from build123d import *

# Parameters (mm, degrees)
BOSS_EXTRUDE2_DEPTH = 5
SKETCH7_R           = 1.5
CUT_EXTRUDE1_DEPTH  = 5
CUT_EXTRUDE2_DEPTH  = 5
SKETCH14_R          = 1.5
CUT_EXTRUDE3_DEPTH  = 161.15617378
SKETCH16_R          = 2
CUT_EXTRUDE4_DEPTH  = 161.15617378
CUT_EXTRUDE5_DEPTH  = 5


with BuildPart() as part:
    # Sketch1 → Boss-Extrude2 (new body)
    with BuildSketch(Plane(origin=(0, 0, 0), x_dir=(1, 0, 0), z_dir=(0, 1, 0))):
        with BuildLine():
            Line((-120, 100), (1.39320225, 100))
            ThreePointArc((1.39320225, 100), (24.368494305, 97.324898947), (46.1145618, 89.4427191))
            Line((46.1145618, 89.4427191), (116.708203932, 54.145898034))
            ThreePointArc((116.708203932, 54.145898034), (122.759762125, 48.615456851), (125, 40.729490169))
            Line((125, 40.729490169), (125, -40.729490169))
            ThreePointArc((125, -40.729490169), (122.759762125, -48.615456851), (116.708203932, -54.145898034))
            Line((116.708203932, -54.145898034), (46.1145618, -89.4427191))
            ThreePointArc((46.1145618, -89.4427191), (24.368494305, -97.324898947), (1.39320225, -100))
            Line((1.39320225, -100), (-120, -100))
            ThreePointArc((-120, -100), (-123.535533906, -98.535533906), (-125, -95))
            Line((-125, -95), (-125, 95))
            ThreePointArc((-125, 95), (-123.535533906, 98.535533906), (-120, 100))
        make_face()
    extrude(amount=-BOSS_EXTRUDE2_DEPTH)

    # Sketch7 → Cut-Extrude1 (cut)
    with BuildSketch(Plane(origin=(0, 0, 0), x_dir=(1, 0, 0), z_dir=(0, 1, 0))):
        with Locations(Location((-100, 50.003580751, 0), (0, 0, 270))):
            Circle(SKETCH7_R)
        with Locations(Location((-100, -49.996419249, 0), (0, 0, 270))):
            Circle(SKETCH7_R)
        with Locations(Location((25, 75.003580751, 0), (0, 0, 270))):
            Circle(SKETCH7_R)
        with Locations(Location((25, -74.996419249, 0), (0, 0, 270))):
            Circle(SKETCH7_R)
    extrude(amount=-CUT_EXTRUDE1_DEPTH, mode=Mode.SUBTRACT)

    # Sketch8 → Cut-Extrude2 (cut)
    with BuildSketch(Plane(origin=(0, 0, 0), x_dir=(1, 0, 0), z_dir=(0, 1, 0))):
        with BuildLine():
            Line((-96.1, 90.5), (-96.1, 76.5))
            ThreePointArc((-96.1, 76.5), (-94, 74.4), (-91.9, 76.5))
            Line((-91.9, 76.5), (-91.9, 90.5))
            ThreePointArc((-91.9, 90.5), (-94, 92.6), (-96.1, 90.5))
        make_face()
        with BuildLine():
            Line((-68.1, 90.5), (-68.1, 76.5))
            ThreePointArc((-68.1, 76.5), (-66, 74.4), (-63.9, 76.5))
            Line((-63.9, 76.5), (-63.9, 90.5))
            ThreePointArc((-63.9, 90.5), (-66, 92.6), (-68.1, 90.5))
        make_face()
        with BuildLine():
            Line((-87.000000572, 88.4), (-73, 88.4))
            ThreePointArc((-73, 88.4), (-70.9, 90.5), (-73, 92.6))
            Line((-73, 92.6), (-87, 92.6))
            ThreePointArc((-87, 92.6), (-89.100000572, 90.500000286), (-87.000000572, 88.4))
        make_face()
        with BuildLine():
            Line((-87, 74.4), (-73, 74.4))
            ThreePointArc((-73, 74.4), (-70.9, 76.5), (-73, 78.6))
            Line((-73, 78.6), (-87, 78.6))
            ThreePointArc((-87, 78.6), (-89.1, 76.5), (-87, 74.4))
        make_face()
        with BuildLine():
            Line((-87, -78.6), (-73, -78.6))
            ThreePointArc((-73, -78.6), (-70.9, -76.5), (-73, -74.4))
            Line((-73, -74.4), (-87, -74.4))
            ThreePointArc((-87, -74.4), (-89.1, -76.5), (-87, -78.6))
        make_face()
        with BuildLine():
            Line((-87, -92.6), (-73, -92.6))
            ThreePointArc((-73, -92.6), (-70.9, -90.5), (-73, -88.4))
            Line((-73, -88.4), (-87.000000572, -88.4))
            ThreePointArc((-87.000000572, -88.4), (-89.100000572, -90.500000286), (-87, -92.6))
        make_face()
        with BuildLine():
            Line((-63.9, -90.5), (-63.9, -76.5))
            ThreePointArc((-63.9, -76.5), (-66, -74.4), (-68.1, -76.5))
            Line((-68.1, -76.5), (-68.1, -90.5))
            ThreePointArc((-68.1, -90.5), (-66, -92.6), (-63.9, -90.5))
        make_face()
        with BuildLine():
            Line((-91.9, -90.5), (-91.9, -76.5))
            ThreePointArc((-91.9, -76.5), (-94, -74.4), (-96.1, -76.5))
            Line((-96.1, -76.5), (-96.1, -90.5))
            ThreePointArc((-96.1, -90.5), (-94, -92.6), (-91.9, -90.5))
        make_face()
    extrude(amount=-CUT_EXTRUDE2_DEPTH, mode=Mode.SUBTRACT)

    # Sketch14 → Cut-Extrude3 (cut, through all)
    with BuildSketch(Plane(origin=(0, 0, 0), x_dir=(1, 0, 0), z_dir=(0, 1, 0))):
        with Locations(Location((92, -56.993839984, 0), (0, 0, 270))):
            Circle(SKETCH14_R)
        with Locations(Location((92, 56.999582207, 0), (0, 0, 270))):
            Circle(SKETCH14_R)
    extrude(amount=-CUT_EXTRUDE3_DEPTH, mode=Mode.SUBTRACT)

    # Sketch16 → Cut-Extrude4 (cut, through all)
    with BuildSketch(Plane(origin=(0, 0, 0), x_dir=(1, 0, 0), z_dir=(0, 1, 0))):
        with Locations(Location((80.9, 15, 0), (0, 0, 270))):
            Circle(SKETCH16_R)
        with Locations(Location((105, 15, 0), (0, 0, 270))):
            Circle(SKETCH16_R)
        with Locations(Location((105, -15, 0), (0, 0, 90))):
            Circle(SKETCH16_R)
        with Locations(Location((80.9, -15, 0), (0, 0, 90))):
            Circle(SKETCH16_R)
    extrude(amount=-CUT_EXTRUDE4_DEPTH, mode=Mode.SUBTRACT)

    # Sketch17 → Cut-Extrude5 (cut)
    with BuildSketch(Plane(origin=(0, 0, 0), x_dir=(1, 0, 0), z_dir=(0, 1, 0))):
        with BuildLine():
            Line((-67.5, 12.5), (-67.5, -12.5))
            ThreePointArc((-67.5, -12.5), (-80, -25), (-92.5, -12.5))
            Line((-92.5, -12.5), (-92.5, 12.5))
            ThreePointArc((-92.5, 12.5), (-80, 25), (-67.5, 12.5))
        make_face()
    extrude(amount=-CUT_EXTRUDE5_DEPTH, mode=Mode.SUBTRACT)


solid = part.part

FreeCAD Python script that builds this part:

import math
import FreeCAD as App
import Part
import Sketcher
from FreeCAD import Vector

doc = App.newDocument("Part")
body = doc.addObject("PartDesign::Body", "Body")

# Sketch on XZ plane
sketch1 = body.newObject("Sketcher::SketchObject", "Sketch")
sketch1.AttachmentSupport = (doc.getObject("XZ_Plane"), [""])
sketch1.MapMode = "FlatFace"
sketch1.addGeometry([
    Part.LineSegment(Vector(1, -100, 0), Vector(-120, -100, 0)),  # 0
    Part.ArcOfCircle(Part.Circle(Vector(-120, -95, 0), Vector(0, 0, 1), 5), math.radians(180), math.radians(270)),  # 1
    Part.LineSegment(Vector(-125, -95, 0), Vector(-125, 95, 0)),  # 2
    Part.ArcOfCircle(Part.Circle(Vector(-120, 95, 0), Vector(0, 0, 1), 5), math.radians(90), math.radians(180)),  # 3
    Part.LineSegment(Vector(-120, 100, 0), Vector(1, 100, 0)),  # 4
    Part.ArcOfCircle(Part.Circle(Vector(1, 0, 0), Vector(0, 0, 1), 100), math.radians(63), math.radians(90)),  # 5
    Part.LineSegment(Vector(46, 89, 0), Vector(117, 54, 0)),  # 6
    Part.ArcOfCircle(Part.Circle(Vector(110, 41, 0), Vector(0, 0, 1), 15), math.radians(0), math.radians(63)),  # 7
    Part.LineSegment(Vector(125, 41, 0), Vector(125, -41, 0)),  # 8
    Part.ArcOfCircle(Part.Circle(Vector(110, -41, 0), Vector(0, 0, 1), 15), math.radians(-63), math.radians(0)),  # 9
    Part.LineSegment(Vector(117, -54, 0), Vector(46, -89, 0)),  # 10
    Part.ArcOfCircle(Part.Circle(Vector(1, 0, 0), Vector(0, 0, 1), 100), math.radians(-90), math.radians(-63)),  # 11
], False)
sketch1.addConstraint([
    Sketcher.Constraint("Tangent", 0, 2, 1, 2),
    Sketcher.Constraint("Tangent", 1, 1, 2, 1),
    Sketcher.Constraint("Tangent", 2, 2, 3, 2),
    Sketcher.Constraint("Tangent", 3, 1, 4, 1),
    Sketcher.Constraint("Tangent", 4, 2, 5, 2),
    Sketcher.Constraint("Tangent", 5, 1, 6, 1),
    Sketcher.Constraint("Tangent", 6, 2, 7, 2),
    Sketcher.Constraint("Tangent", 7, 1, 8, 1),
    Sketcher.Constraint("Tangent", 8, 2, 9, 2),
    Sketcher.Constraint("Tangent", 9, 1, 10, 1),
    Sketcher.Constraint("Tangent", 10, 2, 11, 2),
    Sketcher.Constraint("Tangent", 11, 1, 0, 1),
    Sketcher.Constraint("Horizontal", 0),
    Sketcher.Constraint("Vertical", 2),
    Sketcher.Constraint("Horizontal", 4),
    Sketcher.Constraint("Vertical", 8),
    Sketcher.Constraint("Coincident", 11, 3, 5, 3),
    Sketcher.Constraint("Equal", 1, 3),
    Sketcher.Constraint("Equal", 7, 9),
    Sketcher.Constraint("Equal", 5, 11),
    Sketcher.Constraint("Symmetric", 6, 2, 9, 1, -1),
    Sketcher.Constraint("Radius", 1, 5.0),
    Sketcher.Constraint("Radius", 5, 100.0),
    Sketcher.Constraint("Radius", 7, 15.0),
    Sketcher.Constraint("DistanceX", 1, 3, -1, 1, 120.0),
    Sketcher.Constraint("DistanceX", -1, 1, 7, 3, 110.0),
    Sketcher.Constraint("DistanceX", 4, 2, 6, 2, 115.315002),
    Sketcher.Constraint("DistanceY", 8, 2, 8, 1, 81.45898),
])
pad1 = body.newObject("PartDesign::Pad", "Pad")
pad1.Profile = sketch1
pad1.Length = 5

# Sketch on XZ plane
sketch2 = body.newObject("Sketcher::SketchObject", "Sketch001")
sketch2.AttachmentSupport = (doc.getObject("XZ_Plane"), [""])
sketch2.MapMode = "FlatFace"
sketch2.addGeometry([
    Part.Circle(Vector(-100, -50, 0), Vector(0, 0, 1), 1.5),
    Part.Circle(Vector(-100, 50, 0), Vector(0, 0, 1), 1.5),
    Part.Circle(Vector(25, -75, 0), Vector(0, 0, 1), 1.5),
    Part.Circle(Vector(25, 75, 0), Vector(0, 0, 1), 1.5),
], False)
sketch2.addConstraint([
    Sketcher.Constraint("Equal", 0, 1),
    Sketcher.Constraint("Equal", 1, 2),
    Sketcher.Constraint("Equal", 2, 3),
    Sketcher.Constraint("Vertical", 0, 3, 1, 3),
    Sketcher.Constraint("Vertical", 2, 3, 3, 3),
    Sketcher.Constraint("Diameter", 0, 3.0),
    Sketcher.Constraint("DistanceX", 0, 3, -1, 1, 100.0),
    Sketcher.Constraint("DistanceX", -1, 1, 2, 3, 25.0),
    Sketcher.Constraint("DistanceY", 0, 3, 1, 3, 100.0),
    Sketcher.Constraint("DistanceY", 2, 3, 0, 3, 25.0),
    Sketcher.Constraint("DistanceY", 1, 3, 3, 3, 25.0),
    Sketcher.Constraint("DistanceY", 0, 3, -1, 1, 50.003581),
])
pocket1 = body.newObject("PartDesign::Pocket", "Pocket")
pocket1.Profile = sketch2
pocket1.Length = 5
pocket1.Reversed = True

# Sketch on XZ plane
sketch3 = body.newObject("Sketcher::SketchObject", "Sketch002")
sketch3.AttachmentSupport = (doc.getObject("XZ_Plane"), [""])
sketch3.MapMode = "FlatFace"
sketch3.addGeometry([
    Part.LineSegment(Vector(-96.1, -90.5, 0), Vector(-96.1, -76.5, 0)),  # 0
    Part.ArcOfCircle(Part.Circle(Vector(-94, -76.5, 0), Vector(0, 0, 1), 2.1), math.radians(0), math.radians(180)),  # 1
    Part.LineSegment(Vector(-91.9, -76.5, 0), Vector(-91.9, -90.5, 0)),  # 2
    Part.ArcOfCircle(Part.Circle(Vector(-94, -90.5, 0), Vector(0, 0, 1), 2.1), math.radians(180), math.radians(360)),  # 3
    Part.LineSegment(Vector(-68.1, -90.5, 0), Vector(-68.1, -76.5, 0)),  # 4
    Part.ArcOfCircle(Part.Circle(Vector(-66, -76.5, 0), Vector(0, 0, 1), 2.1), math.radians(0), math.radians(180)),  # 5
    Part.LineSegment(Vector(-63.9, -76.5, 0), Vector(-63.9, -90.5, 0)),  # 6
    Part.ArcOfCircle(Part.Circle(Vector(-66, -90.5, 0), Vector(0, 0, 1), 2.1), math.radians(180), math.radians(360)),  # 7
    Part.LineSegment(Vector(-87, -88.4, 0), Vector(-73, -88.4, 0)),  # 8
    Part.ArcOfCircle(Part.Circle(Vector(-73, -90.5, 0), Vector(0, 0, 1), 2.1), math.radians(-90), math.radians(90)),  # 9
    Part.LineSegment(Vector(-73, -92.6, 0), Vector(-87, -92.6, 0)),  # 10
    Part.ArcOfCircle(Part.Circle(Vector(-87, -90.5, 0), Vector(0, 0, 1), 2.1), math.radians(90), math.radians(270)),  # 11
    Part.LineSegment(Vector(-87, -74.4, 0), Vector(-73, -74.4, 0)),  # 12
    Part.ArcOfCircle(Part.Circle(Vector(-73, -76.5, 0), Vector(0, 0, 1), 2.1), math.radians(-90), math.radians(90)),  # 13
    Part.LineSegment(Vector(-73, -78.6, 0), Vector(-87, -78.6, 0)),  # 14
    Part.ArcOfCircle(Part.Circle(Vector(-87, -76.5, 0), Vector(0, 0, 1), 2.1), math.radians(90), math.radians(270)),  # 15
    Part.LineSegment(Vector(-87, 78.6, 0), Vector(-73, 78.6, 0)),  # 16
    Part.ArcOfCircle(Part.Circle(Vector(-73, 76.5, 0), Vector(0, 0, 1), 2.1), math.radians(-90), math.radians(90)),  # 17
    Part.LineSegment(Vector(-73, 74.4, 0), Vector(-87, 74.4, 0)),  # 18
    Part.ArcOfCircle(Part.Circle(Vector(-87, 76.5, 0), Vector(0, 0, 1), 2.1), math.radians(90), math.radians(270)),  # 19
    Part.LineSegment(Vector(-87, 92.6, 0), Vector(-73, 92.6, 0)),  # 20
    Part.ArcOfCircle(Part.Circle(Vector(-73, 90.5, 0), Vector(0, 0, 1), 2.1), math.radians(-90), math.radians(90)),  # 21
    Part.LineSegment(Vector(-73, 88.4, 0), Vector(-87, 88.4, 0)),  # 22
    Part.ArcOfCircle(Part.Circle(Vector(-87, 90.5, 0), Vector(0, 0, 1), 2.1), math.radians(90), math.radians(270)),  # 23
    Part.LineSegment(Vector(-63.9, 90.5, 0), Vector(-63.9, 76.5, 0)),  # 24
    Part.ArcOfCircle(Part.Circle(Vector(-66, 76.5, 0), Vector(0, 0, 1), 2.1), math.radians(180), math.radians(360)),  # 25
    Part.LineSegment(Vector(-68.1, 76.5, 0), Vector(-68.1, 90.5, 0)),  # 26
    Part.ArcOfCircle(Part.Circle(Vector(-66, 90.5, 0), Vector(0, 0, 1), 2.1), math.radians(0), math.radians(180)),  # 27
    Part.LineSegment(Vector(-91.9, 90.5, 0), Vector(-91.9, 76.5, 0)),  # 28
    Part.ArcOfCircle(Part.Circle(Vector(-94, 76.5, 0), Vector(0, 0, 1), 2.1), math.radians(180), math.radians(360)),  # 29
    Part.LineSegment(Vector(-96.1, 76.5, 0), Vector(-96.1, 90.5, 0)),  # 30
    Part.ArcOfCircle(Part.Circle(Vector(-94, 90.5, 0), Vector(0, 0, 1), 2.1), math.radians(0), math.radians(180)),  # 31
], False)
sketch3.addConstraint([
    Sketcher.Constraint("Tangent", 0, 2, 1, 2),
    Sketcher.Constraint("Tangent", 1, 1, 2, 1),
    Sketcher.Constraint("Tangent", 2, 2, 3, 2),
    Sketcher.Constraint("Tangent", 3, 1, 0, 1),
    Sketcher.Constraint("Tangent", 4, 2, 5, 2),
    Sketcher.Constraint("Tangent", 5, 1, 6, 1),
    Sketcher.Constraint("Tangent", 6, 2, 7, 2),
    Sketcher.Constraint("Tangent", 7, 1, 4, 1),
    Sketcher.Constraint("Tangent", 8, 2, 9, 2),
    Sketcher.Constraint("Tangent", 9, 1, 10, 1),
    Sketcher.Constraint("Tangent", 10, 2, 11, 2),
    Sketcher.Constraint("Tangent", 11, 1, 8, 1),
    Sketcher.Constraint("Tangent", 12, 2, 13, 2),
    Sketcher.Constraint("Tangent", 13, 1, 14, 1),
    Sketcher.Constraint("Tangent", 14, 2, 15, 2),
    Sketcher.Constraint("Tangent", 15, 1, 12, 1),
    Sketcher.Constraint("Tangent", 16, 2, 17, 2),
    Sketcher.Constraint("Tangent", 17, 1, 18, 1),
    Sketcher.Constraint("Tangent", 18, 2, 19, 2),
    Sketcher.Constraint("Tangent", 19, 1, 16, 1),
    Sketcher.Constraint("Tangent", 20, 2, 21, 2),
    Sketcher.Constraint("Tangent", 21, 1, 22, 1),
    Sketcher.Constraint("Tangent", 22, 2, 23, 2),
    Sketcher.Constraint("Tangent", 23, 1, 20, 1),
    Sketcher.Constraint("Tangent", 24, 2, 25, 2),
    Sketcher.Constraint("Tangent", 25, 1, 26, 1),
    Sketcher.Constraint("Tangent", 26, 2, 27, 2),
    Sketcher.Constraint("Tangent", 27, 1, 24, 1),
    Sketcher.Constraint("Tangent", 28, 2, 29, 2),
    Sketcher.Constraint("Tangent", 29, 1, 30, 1),
    Sketcher.Constraint("Tangent", 30, 2, 31, 2),
    Sketcher.Constraint("Tangent", 31, 1, 28, 1),
    Sketcher.Constraint("Vertical", 0),
    Sketcher.Constraint("Vertical", 2),
    Sketcher.Constraint("Vertical", 4),
    Sketcher.Constraint("Vertical", 6),
    Sketcher.Constraint("Horizontal", 8),
    Sketcher.Constraint("Horizontal", 10),
    Sketcher.Constraint("Horizontal", 12),
    Sketcher.Constraint("Horizontal", 14),
    Sketcher.Constraint("Horizontal", 16),
    Sketcher.Constraint("Horizontal", 18),
    Sketcher.Constraint("Horizontal", 20),
    Sketcher.Constraint("Horizontal", 22),
    Sketcher.Constraint("Vertical", 24),
    Sketcher.Constraint("Vertical", 26),
    Sketcher.Constraint("Vertical", 28),
    Sketcher.Constraint("Vertical", 30),
    Sketcher.Constraint("Equal", 3, 5),
    Sketcher.Constraint("Equal", 7, 9),
    Sketcher.Constraint("Equal", 11, 13),
    Sketcher.Constraint("Equal", 15, 17),
    Sketcher.Constraint("Equal", 19, 21),
    Sketcher.Constraint("Equal", 23, 25),
    Sketcher.Constraint("Equal", 27, 29),
    Sketcher.Constraint("Symmetric", 13, 3, 17, 3, -1),
    Sketcher.Constraint("Symmetric", 9, 3, 21, 3, -1),
    Sketcher.Constraint("Symmetric", 5, 3, 25, 3, -1),
    Sketcher.Constraint("Symmetric", 1, 3, 29, 3, -1),
    Sketcher.Constraint("Horizontal", 1, 3, 5, 3),
    Sketcher.Constraint("Horizontal", 3, 3, 7, 3),
    Sketcher.Constraint("Horizontal", 7, 3, 9, 3),
    Sketcher.Constraint("Horizontal", 5, 3, 13, 3),
    Sketcher.Constraint("Horizontal", 23, 3, 27, 3),
    Sketcher.Constraint("Horizontal", 27, 3, 31, 3),
    Sketcher.Constraint("Vertical", 9, 3, 13, 3),
    Sketcher.Constraint("Vertical", 11, 3, 15, 3),
    Sketcher.Constraint("Vertical", 15, 3, 19, 3),
    Sketcher.Constraint("Vertical", 19, 3, 23, 3),
    Sketcher.Constraint("Equal", 22, 0),
    Sketcher.Constraint("Radius", 1, 2.1),
    Sketcher.Constraint("DistanceX", 8, 1, 8, 2, 14.000001),
    Sketcher.Constraint("DistanceX", 1, 3, -1, 1, 94.0),
    Sketcher.Constraint("DistanceX", 5, 3, -1, 1, 66.0),
    Sketcher.Constraint("DistanceX", 9, 3, -1, 1, 73.0),
    Sketcher.Constraint("DistanceY", 13, 3, 17, 3, 153.0),
])
pocket2 = body.newObject("PartDesign::Pocket", "Pocket001")
pocket2.Profile = sketch3
pocket2.Length = 5
pocket2.Reversed = True

# Sketch on XZ plane
sketch4 = body.newObject("Sketcher::SketchObject", "Sketch003")
sketch4.AttachmentSupport = (doc.getObject("XZ_Plane"), [""])
sketch4.MapMode = "FlatFace"
sketch4.addGeometry([
    Part.Circle(Vector(92, 57, 0), Vector(0, 0, 1), 1.5),
    Part.Circle(Vector(92, -57, 0), Vector(0, 0, 1), 1.5),
], False)
sketch4.addConstraint([
    Sketcher.Constraint("Equal", 0, 1),
    Sketcher.Constraint("Vertical", 0, 3, 1, 3),
    Sketcher.Constraint("Diameter", 0, 3.0),
    Sketcher.Constraint("DistanceX", -1, 1, 0, 3, 92.0),
    Sketcher.Constraint("DistanceY", -1, 1, 0, 3, 56.99384),
    Sketcher.Constraint("DistanceY", 1, 3, -1, 1, 56.999582),
])
pocket3 = body.newObject("PartDesign::Pocket", "Pocket002")
pocket3.Profile = sketch4
pocket3.Type = "ThroughAll"
pocket3.Reversed = True

# Sketch on XZ plane
sketch5 = body.newObject("Sketcher::SketchObject", "Sketch004")
sketch5.AttachmentSupport = (doc.getObject("XZ_Plane"), [""])
sketch5.MapMode = "FlatFace"
sketch5.addGeometry([
    Part.Circle(Vector(80.9, -15, 0), Vector(0, 0, 1), 2),
    Part.Circle(Vector(105, -15, 0), Vector(0, 0, 1), 2),
    Part.Circle(Vector(105, 15, 0), Vector(0, 0, 1), 2),
    Part.Circle(Vector(80.9, 15, 0), Vector(0, 0, 1), 2),
], False)
sketch5.addConstraint([
    Sketcher.Constraint("Equal", 0, 1),
    Sketcher.Constraint("Equal", 1, 2),
    Sketcher.Constraint("Equal", 2, 3),
    Sketcher.Constraint("Symmetric", 1, 3, 2, 3, -1),
    Sketcher.Constraint("Symmetric", 0, 3, 3, 3, -1),
    Sketcher.Constraint("Horizontal", 0, 3, 1, 3),
    Sketcher.Constraint("Diameter", 0, 4.0),
    Sketcher.Constraint("DistanceY", 0, 3, -1, 1, 15.0),
    Sketcher.Constraint("DistanceX", -1, 1, 1, 3, 105.0),
    Sketcher.Constraint("DistanceX", -1, 1, 0, 3, 80.9),
])
pocket4 = body.newObject("PartDesign::Pocket", "Pocket003")
pocket4.Profile = sketch5
pocket4.Type = "ThroughAll"
pocket4.Reversed = True

# Sketch on XZ plane
sketch6 = body.newObject("Sketcher::SketchObject", "Sketch005")
sketch6.AttachmentSupport = (doc.getObject("XZ_Plane"), [""])
sketch6.MapMode = "FlatFace"
sketch6.addGeometry([
    Part.LineSegment(Vector(-68, 12, 0), Vector(-68, -12, 0)),
    Part.ArcOfCircle(Part.Circle(Vector(-80, -12, 0), Vector(0, 0, 1), 12), math.radians(180), math.radians(360)),
    Part.LineSegment(Vector(-92, -12, 0), Vector(-92, 12, 0)),
    Part.ArcOfCircle(Part.Circle(Vector(-80, 12, 0), Vector(0, 0, 1), 12), math.radians(0), math.radians(180)),
], False)
sketch6.addConstraint([
    Sketcher.Constraint("Tangent", 0, 2, 1, 2),
    Sketcher.Constraint("Tangent", 1, 1, 2, 1),
    Sketcher.Constraint("Tangent", 2, 2, 3, 2),
    Sketcher.Constraint("Tangent", 3, 1, 0, 1),
    Sketcher.Constraint("Vertical", 0),
    Sketcher.Constraint("Vertical", 2),
    Sketcher.Constraint("Radius", 1, 12.5),
    Sketcher.Constraint("DistanceY", 0, 2, 0, 1, 25.0),
    Sketcher.Constraint("DistanceX", 1, 3, -1, 1, 80.0),
    Sketcher.Constraint("DistanceY", 1, 3, -1, 1, 12.5),
])
pocket5 = body.newObject("PartDesign::Pocket", "Pocket004")
pocket5.Profile = sketch6
pocket5.Length = 5
pocket5.Reversed = True

doc.recompute()
